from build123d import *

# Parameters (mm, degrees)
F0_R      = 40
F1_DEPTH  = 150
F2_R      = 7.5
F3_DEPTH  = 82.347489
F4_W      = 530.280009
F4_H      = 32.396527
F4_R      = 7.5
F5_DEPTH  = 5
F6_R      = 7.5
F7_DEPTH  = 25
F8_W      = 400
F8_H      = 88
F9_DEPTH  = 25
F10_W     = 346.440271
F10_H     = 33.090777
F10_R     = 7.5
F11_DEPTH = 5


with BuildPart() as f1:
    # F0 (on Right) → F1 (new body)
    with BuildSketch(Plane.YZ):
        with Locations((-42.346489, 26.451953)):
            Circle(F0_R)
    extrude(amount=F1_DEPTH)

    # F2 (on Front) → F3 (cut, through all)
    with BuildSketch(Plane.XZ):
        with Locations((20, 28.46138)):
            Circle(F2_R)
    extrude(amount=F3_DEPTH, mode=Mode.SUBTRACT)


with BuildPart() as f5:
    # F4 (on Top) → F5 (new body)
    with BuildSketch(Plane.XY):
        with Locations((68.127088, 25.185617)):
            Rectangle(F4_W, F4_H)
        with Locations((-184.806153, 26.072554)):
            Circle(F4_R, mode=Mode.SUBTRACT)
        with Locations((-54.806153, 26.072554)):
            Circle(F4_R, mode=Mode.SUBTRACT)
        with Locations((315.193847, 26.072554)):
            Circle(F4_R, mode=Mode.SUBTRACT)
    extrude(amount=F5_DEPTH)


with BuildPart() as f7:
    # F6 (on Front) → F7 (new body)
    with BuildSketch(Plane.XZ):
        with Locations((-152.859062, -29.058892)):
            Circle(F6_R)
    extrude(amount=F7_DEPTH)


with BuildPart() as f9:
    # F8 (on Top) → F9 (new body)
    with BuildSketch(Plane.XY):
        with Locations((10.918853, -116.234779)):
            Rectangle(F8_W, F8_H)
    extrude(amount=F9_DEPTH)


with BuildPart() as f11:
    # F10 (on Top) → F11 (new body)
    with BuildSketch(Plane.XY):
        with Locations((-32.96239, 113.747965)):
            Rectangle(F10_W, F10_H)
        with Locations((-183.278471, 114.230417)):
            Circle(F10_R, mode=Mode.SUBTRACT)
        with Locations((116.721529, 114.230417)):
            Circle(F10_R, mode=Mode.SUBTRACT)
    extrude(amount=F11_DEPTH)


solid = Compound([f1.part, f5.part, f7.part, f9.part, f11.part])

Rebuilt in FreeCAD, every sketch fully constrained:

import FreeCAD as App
import Part
import Sketcher

doc = App.newDocument("Part")
body = doc.addObject("PartDesign::Body", "Body")

sketch1 = doc.addObject("Sketcher::SketchObject", "Sketch")
body.addObject(sketch1)
sketch1.AttachmentSupport = (doc.YZ_Plane, [""])
sketch1.MapMode = "FlatFace"
sketch1.addGeometry(Part.Circle(App.Vector(-42, 26, 0), App.Vector(0, 0, 1), 40), False)
sketch1.addConstraint(Sketcher.Constraint("Diameter", 0, 80.0))
sketch1.addConstraint(Sketcher.Constraint("DistanceX", 0, 3, -1, 1, 42.346489))
sketch1.addConstraint(Sketcher.Constraint("DistanceY", -1, 1, 0, 3, 26.451953))
pad1 = doc.addObject("PartDesign::Pad", "Pad")
body.addObject(pad1)
pad1.Profile = sketch1
pad1.Length = 150

sketch2 = doc.addObject("Sketcher::SketchObject", "Sketch001")
body.addObject(sketch2)
sketch2.AttachmentSupport = (doc.XZ_Plane, [""])
sketch2.MapMode = "FlatFace"
sketch2.addGeometry(Part.Circle(App.Vector(20, 28, 0), App.Vector(0, 0, 1), 8), False)
sketch2.addConstraint(Sketcher.Constraint("Diameter", 0, 15.0))
sketch2.addConstraint(Sketcher.Constraint("DistanceX", -1, 1, 0, 3, 20.0))
sketch2.addConstraint(Sketcher.Constraint("DistanceY", -1, 1, 0, 3, 28.46138))
pocket1 = doc.addObject("PartDesign::Pocket", "Pocket")
body.addObject(pocket1)
pocket1.Profile = sketch2
pocket1.Type = "ThroughAll"
pocket1.Reversed = True
body2 = doc.addObject("PartDesign::Body", "Body001")

sketch3 = doc.addObject("Sketcher::SketchObject", "Sketch002")
body2.addObject(sketch3)
sketch3.AttachmentSupport = (doc.getObject("XY_Plane001"), [""])
sketch3.MapMode = "FlatFace"
sketch3.addGeometry(Part.LineSegment(App.Vector(-197, 41, 0), App.Vector(-197, 9, 0)), False)
sketch3.addGeometry(Part.LineSegment(App.Vector(-197, 9, 0), App.Vector(333, 9, 0)), False)
sketch3.addGeometry(Part.LineSegment(App.Vector(333, 9, 0), App.Vector(333, 41, 0)), False)
sketch3.addGeometry(Part.LineSegment(App.Vector(333, 41, 0), App.Vector(-197, 41, 0)), False)
sketch3.addGeometry(Part.Circle(App.Vector(-185, 26, 0), App.Vector(0, 0, 1), 8), False)
sketch3.addGeometry(Part.Circle(App.Vector(-55, 26, 0), App.Vector(0, 0, 1), 8), False)
sketch3.addGeometry(Part.Circle(App.Vector(315, 26, 0), App.Vector(0, 0, 1), 8), False)
sketch3.addConstraint(Sketcher.Constraint("Coincident", 0, 2, 1, 1))
sketch3.addConstraint(Sketcher.Constraint("Coincident", 1, 2, 2, 1))
sketch3.addConstraint(Sketcher.Constraint("Coincident", 2, 2, 3, 1))
sketch3.addConstraint(Sketcher.Constraint("Coincident", 3, 2, 0, 1))
sketch3.addConstraint(Sketcher.Constraint("Vertical", 0))
sketch3.addConstraint(Sketcher.Constraint("Horizontal", 1))
sketch3.addConstraint(Sketcher.Constraint("Vertical", 2))
sketch3.addConstraint(Sketcher.Constraint("Horizontal", 3))
sketch3.addConstraint(Sketcher.Constraint("Equal", 4, 5))
sketch3.addConstraint(Sketcher.Constraint("Equal", 5, 6))
sketch3.addConstraint(Sketcher.Constraint("Horizontal", 4, 3, 5, 3))
sketch3.addConstraint(Sketcher.Constraint("Horizontal", 5, 3, 6, 3))
sketch3.addConstraint(Sketcher.Constraint("Diameter", 4, 15.0))
sketch3.addConstraint(Sketcher.Constraint("DistanceX", 4, 3, 5, 3, 130.0))
sketch3.addConstraint(Sketcher.Constraint("DistanceX", 5, 3, 6, 3, 370.0))
sketch3.addConstraint(Sketcher.Constraint("DistanceX", 1, 1, 1, 2, 530.280009))
sketch3.addConstraint(Sketcher.Constraint("DistanceY", 0, 2, 4, 3, 17.0852))
sketch3.addConstraint(Sketcher.Constraint("DistanceY", 0, 2, 0, 1, 32.396527))
sketch3.addConstraint(Sketcher.Constraint("DistanceY", -1, 1, 2, 2, 41.38388))
sketch3.addConstraint(Sketcher.Constraint("DistanceX", 4, 3, -1, 1, 184.806153))
sketch3.addConstraint(Sketcher.Constraint("DistanceX", 0, 2, -1, 1, 197.012916))
pad2 = doc.addObject("PartDesign::Pad", "Pad001")
body2.addObject(pad2)
pad2.Profile = sketch3
pad2.Length = 5
body3 = doc.addObject("PartDesign::Body", "Body002")

sketch4 = doc.addObject("Sketcher::SketchObject", "Sketch003")
body3.addObject(sketch4)
sketch4.AttachmentSupport = (doc.getObject("XZ_Plane002"), [""])
sketch4.MapMode = "FlatFace"
sketch4.addGeometry(Part.Circle(App.Vector(-153, -29, 0), App.Vector(0, 0, 1), 8), False)
sketch4.addConstraint(Sketcher.Constraint("Diameter", 0, 15.0))
sketch4.addConstraint(Sketcher.Constraint("DistanceX", 0, 3, -1, 1, 152.859062))
sketch4.addConstraint(Sketcher.Constraint("DistanceY", 0, 3, -1, 1, 29.058892))
pad3 = doc.addObject("PartDesign::Pad", "Pad002")
body3.addObject(pad3)
pad3.Profile = sketch4
pad3.Length = 25
body4 = doc.addObject("PartDesign::Body", "Body003")

sketch5 = doc.addObject("Sketcher::SketchObject", "Sketch004")
body4.addObject(sketch5)
sketch5.AttachmentSupport = (doc.getObject("XY_Plane003"), [""])
sketch5.MapMode = "FlatFace"
sketch5.addGeometry(Part.LineSegment(App.Vector(-189, -72, 0), App.Vector(-189, -160, 0)), False)
sketch5.addGeometry(Part.LineSegment(App.Vector(-189, -160, 0), App.Vector(211, -160, 0)), False)
sketch5.addGeometry(Part.LineSegment(App.Vector(211, -160, 0), App.Vector(211, -72, 0)), False)
sketch5.addGeometry(Part.LineSegment(App.Vector(211, -72, 0), App.Vector(-189, -72, 0)), False)
sketch5.addConstraint(Sketcher.Constraint("Coincident", 0, 2, 1, 1))
sketch5.addConstraint(Sketcher.Constraint("Coincident", 1, 2, 2, 1))
sketch5.addConstraint(Sketcher.Constraint("Coincident", 2, 2, 3, 1))
sketch5.addConstraint(Sketcher.Constraint("Coincident", 3, 2, 0, 1))
sketch5.addConstraint(Sketcher.Constraint("Vertical", 0))
sketch5.addConstraint(Sketcher.Constraint("Horizontal", 1))
sketch5.addConstraint(Sketcher.Constraint("Vertical", 2))
sketch5.addConstraint(Sketcher.Constraint("Horizontal", 3))
sketch5.addConstraint(Sketcher.Constraint("DistanceX", 1, 1, 1, 2, 400.0))
sketch5.addConstraint(Sketcher.Constraint("DistanceY", 0, 2, 0, 1, 88.0))
sketch5.addConstraint(Sketcher.Constraint("DistanceY", 0, 2, -1, 1, 160.234779))
sketch5.addConstraint(Sketcher.Constraint("DistanceX", 0, 2, -1, 1, 189.081147))
pad4 = doc.addObject("PartDesign::Pad", "Pad003")
body4.addObject(pad4)
pad4.Profile = sketch5
pad4.Length = 25
body5 = doc.addObject("PartDesign::Body", "Body004")

sketch6 = doc.addObject("Sketcher::SketchObject", "Sketch005")
body5.addObject(sketch6)
sketch6.AttachmentSupport = (doc.getObject("XY_Plane004"), [""])
sketch6.MapMode = "FlatFace"
sketch6.addGeometry(Part.LineSegment(App.Vector(-206, 130, 0), App.Vector(-206, 97, 0)), False)
sketch6.addGeometry(Part.LineSegment(App.Vector(-206, 97, 0), App.Vector(140, 97, 0)), False)
sketch6.addGeometry(Part.LineSegment(App.Vector(140, 97, 0), App.Vector(140, 130, 0)), False)
sketch6.addGeometry(Part.LineSegment(App.Vector(140, 130, 0), App.Vector(-206, 130, 0)), False)
sketch6.addGeometry(Part.Circle(App.Vector(-183, 114, 0), App.Vector(0, 0, 1), 8), False)
sketch6.addGeometry(Part.Circle(App.Vector(117, 114, 0), App.Vector(0, 0, 1), 8), False)
sketch6.addConstraint(Sketcher.Constraint("Coincident", 0, 2, 1, 1))
sketch6.addConstraint(Sketcher.Constraint("Coincident", 1, 2, 2, 1))
sketch6.addConstraint(Sketcher.Constraint("Coincident", 2, 2, 3, 1))
sketch6.addConstraint(Sketcher.Constraint("Coincident", 3, 2, 0, 1))
sketch6.addConstraint(Sketcher.Constraint("Vertical", 0))
sketch6.addConstraint(Sketcher.Constraint("Horizontal", 1))
sketch6.addConstraint(Sketcher.Constraint("Vertical", 2))
sketch6.addConstraint(Sketcher.Constraint("Horizontal", 3))
sketch6.addConstraint(Sketcher.Constraint("Equal", 4, 5))
sketch6.addConstraint(Sketcher.Constraint("Horizontal", 4, 3, 5, 3))
sketch6.addConstraint(Sketcher.Constraint("Diameter", 4, 15.0))
sketch6.addConstraint(Sketcher.Constraint("DistanceX", 4, 3, 5, 3, 300.0))
sketch6.addConstraint(Sketcher.Constraint("DistanceX", 1, 1, 1, 2, 346.440271))
sketch6.addConstraint(Sketcher.Constraint("DistanceY", 0, 2, 0, 1, 33.090777))
sketch6.addConstraint(Sketcher.Constraint("DistanceX", 4, 3, -1, 1, 183.278471))
sketch6.addConstraint(Sketcher.Constraint("DistanceY", 0, 2, 4, 3, 17.02784))
sketch6.addConstraint(Sketcher.Constraint("DistanceY", -1, 1, 4, 3, 114.230417))
sketch6.addConstraint(Sketcher.Constraint("DistanceX", 0, 2, -1, 1, 206.182525))
pad5 = doc.addObject("PartDesign::Pad", "Pad004")
body5.addObject(pad5)
pad5.Profile = sketch6
pad5.Length = 5

doc.recompute()
